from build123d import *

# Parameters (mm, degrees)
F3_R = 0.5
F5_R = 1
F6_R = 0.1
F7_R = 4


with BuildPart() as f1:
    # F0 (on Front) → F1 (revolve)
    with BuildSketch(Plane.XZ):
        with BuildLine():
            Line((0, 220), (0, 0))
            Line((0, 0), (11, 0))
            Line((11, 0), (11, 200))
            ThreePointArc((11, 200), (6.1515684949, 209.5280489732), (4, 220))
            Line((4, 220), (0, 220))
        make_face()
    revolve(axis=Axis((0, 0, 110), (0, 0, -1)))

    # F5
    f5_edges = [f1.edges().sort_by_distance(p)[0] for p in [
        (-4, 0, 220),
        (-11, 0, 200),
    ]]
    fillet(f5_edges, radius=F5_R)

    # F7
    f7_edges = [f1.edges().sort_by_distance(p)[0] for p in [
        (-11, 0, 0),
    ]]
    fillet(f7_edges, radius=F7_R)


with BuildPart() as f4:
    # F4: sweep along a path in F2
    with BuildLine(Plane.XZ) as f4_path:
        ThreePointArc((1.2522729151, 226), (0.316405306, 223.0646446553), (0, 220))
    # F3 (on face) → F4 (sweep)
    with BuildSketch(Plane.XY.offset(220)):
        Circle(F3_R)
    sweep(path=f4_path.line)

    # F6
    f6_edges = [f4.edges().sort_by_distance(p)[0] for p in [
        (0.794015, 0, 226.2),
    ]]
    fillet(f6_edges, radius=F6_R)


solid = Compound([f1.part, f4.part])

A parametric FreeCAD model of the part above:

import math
import FreeCAD as App
import Part
import Sketcher

V = App.Vector


def edges_at(feature, points):
    """Names of the edges that pass closest to the given points."""
    edges = feature.Shape.Edges
    near = lambda p: min(range(len(edges)), key=lambda i: edges[i].distToShape(Part.Vertex(*p))[0])
    return sorted({f"Edge{near(p) + 1}" for p in points})

doc = App.newDocument("Part")
params = doc.addObject("Spreadsheet::Sheet", "Params")
for row, (alias, value) in enumerate([
    ("sketch1_radius", "40 mm"),
    ("sketch1_width", "11 mm"),
    ("sketch1_width2", "4 mm"),
    ("sketch1_height", "220 mm"),
    ("sketch1_height2", "200 mm"),
    ("revolution_angle", "360 deg"),
    ("fillet_radius", "1 mm"),
    ("fillet2_radius", "4 mm"),
    ("sketch2_diameter", "1 mm"),
    ("sketch3_radius", "15 mm"),
    ("fillet3_radius", "0.1 mm"),
], start=1):
    params.set(f"A{row}", alias)
    params.set(f"B{row}", "=" + value)
    params.setAlias(f"B{row}", alias)

body = doc.addObject("PartDesign::Body", "Body")

# Sketch on XZ plane
sketch1 = body.newObject("Sketcher::SketchObject", "Sketch")
sketch1.AttachmentSupport = (doc.getObject("XZ_Plane"), [""])
sketch1.MapMode = "FlatFace"
sketch1.addGeometry([
    Part.LineSegment(V(0, 220, 0), V(0, 0, 0)),  # 0
    Part.LineSegment(V(0, 0, 0), V(11, 0, 0)),  # 1
    Part.LineSegment(V(11, 0, 0), V(11, 200, 0)),  # 2
    Part.ArcOfCircle(Part.Circle(V(43.9, 222.7, 0), V(0, 0, 1), 40), math.radians(-176), math.radians(-145)),  # 3
    Part.LineSegment(V(4, 220, 0), V(0, 220, 0)),  # 4
], False)
sketch1.addConstraint([
    Sketcher.Constraint("Coincident", 0, 2, 1, 1),
    Sketcher.Constraint("Coincident", 1, 2, 2, 1),
    Sketcher.Constraint("Coincident", 2, 2, 3, 2),
    Sketcher.Constraint("Coincident", 3, 1, 4, 1),
    Sketcher.Constraint("Coincident", 4, 2, 0, 1),
    Sketcher.Constraint("Vertical", 0),
    Sketcher.Constraint("Horizontal", 1),
    Sketcher.Constraint("Vertical", 2),
    Sketcher.Constraint("Horizontal", 4),
    Sketcher.Constraint("Coincident", 0, 2, -1, 1),
    Sketcher.Constraint("Radius", 3, 40.0),
    Sketcher.Constraint("DistanceX", 1, 1, 1, 2, 11.0),
    Sketcher.Constraint("DistanceX", 4, 2, 4, 1, 4.0),
    Sketcher.Constraint("DistanceY", 0, 2, 0, 1, 220.0),
    Sketcher.Constraint("DistanceY", 2, 1, 2, 2, 200.0),
])
sketch1.setExpression("Constraints[10]", "Params.sketch1_radius")
sketch1.setExpression("Constraints[11]", "Params.sketch1_width")
sketch1.setExpression("Constraints[12]", "Params.sketch1_width2")
sketch1.setExpression("Constraints[13]", "Params.sketch1_height")
sketch1.setExpression("Constraints[14]", "Params.sketch1_height2")
revolution = body.newObject("PartDesign::Revolution", "Revolution")
revolution.Profile = sketch1
revolution.ReferenceAxis = (sketch1, ["V_Axis"])
revolution.setExpression("Angle", "Params.revolution_angle")
doc.recompute()

fillet = body.newObject("PartDesign::Fillet", "Fillet")
fillet.Base = (revolution, edges_at(revolution, [(-4, 0, 220), (-11, 0, 200)]))
fillet.setExpression("Radius", "Params.fillet_radius")
doc.recompute()

fillet2 = body.newObject("PartDesign::Fillet", "Fillet001")
fillet2.Base = (fillet, edges_at(fillet, [(-11, 0, 0)]))
fillet2.setExpression("Radius", "Params.fillet2_radius")
body2 = doc.addObject("PartDesign::Body", "Body001")

# Sketch on XY plane
sketch2 = body2.newObject("Sketcher::SketchObject", "Sketch001")
sketch2.AttachmentSupport = (doc.getObject("XY_Plane001"), [""])
sketch2.MapMode = "FlatFace"
sketch2.AttachmentOffset = App.Placement(V(0, 0, 220), App.Rotation())
sketch2.addGeometry(Part.Circle(V(0, 0, 0), V(0, 0, 1), 0.5), False)
sketch2.addConstraint([
    Sketcher.Constraint("Coincident", 0, 3, -1, 1),
    Sketcher.Constraint("Diameter", 0, 1.0),
])
sketch2.setExpression("Constraints[1]", "Params.sketch2_diameter")

# Sketch on XZ plane
sketch3 = body2.newObject("Sketcher::SketchObject", "Sketch002")
sketch3.AttachmentSupport = (doc.getObject("XZ_Plane001"), [""])
sketch3.MapMode = "FlatFace"
sketch3.addGeometry(Part.ArcOfCircle(Part.Circle(V(15, 220, 0), V(0, 0, 1), 15), math.radians(156), math.radians(180)), False)
sketch3.addConstraint([
    Sketcher.Constraint("PointOnObject", 0, 2, -2),
    Sketcher.Constraint("Radius", 0, 15.0),
    Sketcher.Constraint("DistanceY", -1, 1, 0, 3, 220.0),
    Sketcher.Constraint("DistanceY", -1, 1, 0, 1, 226.0),
    Sketcher.Constraint("DistanceY", -1, 1, 0, 2, 220.0),
])
sketch3.setExpression("Constraints[1]", "Params.sketch3_radius")
doc.recompute()

additivepipe = body2.newObject("PartDesign::AdditivePipe", "AdditivePipe")
additivepipe.Profile = sketch2
additivepipe.Spine = (sketch3, ["Edge1"])
doc.recompute()

fillet3 = body2.newObject("PartDesign::Fillet", "Fillet002")
fillet3.Base = (additivepipe, edges_at(additivepipe, [(0.794, 0, 226.2)]))
fillet3.setExpression("Radius", "Params.fillet3_radius")

doc.recompute()
